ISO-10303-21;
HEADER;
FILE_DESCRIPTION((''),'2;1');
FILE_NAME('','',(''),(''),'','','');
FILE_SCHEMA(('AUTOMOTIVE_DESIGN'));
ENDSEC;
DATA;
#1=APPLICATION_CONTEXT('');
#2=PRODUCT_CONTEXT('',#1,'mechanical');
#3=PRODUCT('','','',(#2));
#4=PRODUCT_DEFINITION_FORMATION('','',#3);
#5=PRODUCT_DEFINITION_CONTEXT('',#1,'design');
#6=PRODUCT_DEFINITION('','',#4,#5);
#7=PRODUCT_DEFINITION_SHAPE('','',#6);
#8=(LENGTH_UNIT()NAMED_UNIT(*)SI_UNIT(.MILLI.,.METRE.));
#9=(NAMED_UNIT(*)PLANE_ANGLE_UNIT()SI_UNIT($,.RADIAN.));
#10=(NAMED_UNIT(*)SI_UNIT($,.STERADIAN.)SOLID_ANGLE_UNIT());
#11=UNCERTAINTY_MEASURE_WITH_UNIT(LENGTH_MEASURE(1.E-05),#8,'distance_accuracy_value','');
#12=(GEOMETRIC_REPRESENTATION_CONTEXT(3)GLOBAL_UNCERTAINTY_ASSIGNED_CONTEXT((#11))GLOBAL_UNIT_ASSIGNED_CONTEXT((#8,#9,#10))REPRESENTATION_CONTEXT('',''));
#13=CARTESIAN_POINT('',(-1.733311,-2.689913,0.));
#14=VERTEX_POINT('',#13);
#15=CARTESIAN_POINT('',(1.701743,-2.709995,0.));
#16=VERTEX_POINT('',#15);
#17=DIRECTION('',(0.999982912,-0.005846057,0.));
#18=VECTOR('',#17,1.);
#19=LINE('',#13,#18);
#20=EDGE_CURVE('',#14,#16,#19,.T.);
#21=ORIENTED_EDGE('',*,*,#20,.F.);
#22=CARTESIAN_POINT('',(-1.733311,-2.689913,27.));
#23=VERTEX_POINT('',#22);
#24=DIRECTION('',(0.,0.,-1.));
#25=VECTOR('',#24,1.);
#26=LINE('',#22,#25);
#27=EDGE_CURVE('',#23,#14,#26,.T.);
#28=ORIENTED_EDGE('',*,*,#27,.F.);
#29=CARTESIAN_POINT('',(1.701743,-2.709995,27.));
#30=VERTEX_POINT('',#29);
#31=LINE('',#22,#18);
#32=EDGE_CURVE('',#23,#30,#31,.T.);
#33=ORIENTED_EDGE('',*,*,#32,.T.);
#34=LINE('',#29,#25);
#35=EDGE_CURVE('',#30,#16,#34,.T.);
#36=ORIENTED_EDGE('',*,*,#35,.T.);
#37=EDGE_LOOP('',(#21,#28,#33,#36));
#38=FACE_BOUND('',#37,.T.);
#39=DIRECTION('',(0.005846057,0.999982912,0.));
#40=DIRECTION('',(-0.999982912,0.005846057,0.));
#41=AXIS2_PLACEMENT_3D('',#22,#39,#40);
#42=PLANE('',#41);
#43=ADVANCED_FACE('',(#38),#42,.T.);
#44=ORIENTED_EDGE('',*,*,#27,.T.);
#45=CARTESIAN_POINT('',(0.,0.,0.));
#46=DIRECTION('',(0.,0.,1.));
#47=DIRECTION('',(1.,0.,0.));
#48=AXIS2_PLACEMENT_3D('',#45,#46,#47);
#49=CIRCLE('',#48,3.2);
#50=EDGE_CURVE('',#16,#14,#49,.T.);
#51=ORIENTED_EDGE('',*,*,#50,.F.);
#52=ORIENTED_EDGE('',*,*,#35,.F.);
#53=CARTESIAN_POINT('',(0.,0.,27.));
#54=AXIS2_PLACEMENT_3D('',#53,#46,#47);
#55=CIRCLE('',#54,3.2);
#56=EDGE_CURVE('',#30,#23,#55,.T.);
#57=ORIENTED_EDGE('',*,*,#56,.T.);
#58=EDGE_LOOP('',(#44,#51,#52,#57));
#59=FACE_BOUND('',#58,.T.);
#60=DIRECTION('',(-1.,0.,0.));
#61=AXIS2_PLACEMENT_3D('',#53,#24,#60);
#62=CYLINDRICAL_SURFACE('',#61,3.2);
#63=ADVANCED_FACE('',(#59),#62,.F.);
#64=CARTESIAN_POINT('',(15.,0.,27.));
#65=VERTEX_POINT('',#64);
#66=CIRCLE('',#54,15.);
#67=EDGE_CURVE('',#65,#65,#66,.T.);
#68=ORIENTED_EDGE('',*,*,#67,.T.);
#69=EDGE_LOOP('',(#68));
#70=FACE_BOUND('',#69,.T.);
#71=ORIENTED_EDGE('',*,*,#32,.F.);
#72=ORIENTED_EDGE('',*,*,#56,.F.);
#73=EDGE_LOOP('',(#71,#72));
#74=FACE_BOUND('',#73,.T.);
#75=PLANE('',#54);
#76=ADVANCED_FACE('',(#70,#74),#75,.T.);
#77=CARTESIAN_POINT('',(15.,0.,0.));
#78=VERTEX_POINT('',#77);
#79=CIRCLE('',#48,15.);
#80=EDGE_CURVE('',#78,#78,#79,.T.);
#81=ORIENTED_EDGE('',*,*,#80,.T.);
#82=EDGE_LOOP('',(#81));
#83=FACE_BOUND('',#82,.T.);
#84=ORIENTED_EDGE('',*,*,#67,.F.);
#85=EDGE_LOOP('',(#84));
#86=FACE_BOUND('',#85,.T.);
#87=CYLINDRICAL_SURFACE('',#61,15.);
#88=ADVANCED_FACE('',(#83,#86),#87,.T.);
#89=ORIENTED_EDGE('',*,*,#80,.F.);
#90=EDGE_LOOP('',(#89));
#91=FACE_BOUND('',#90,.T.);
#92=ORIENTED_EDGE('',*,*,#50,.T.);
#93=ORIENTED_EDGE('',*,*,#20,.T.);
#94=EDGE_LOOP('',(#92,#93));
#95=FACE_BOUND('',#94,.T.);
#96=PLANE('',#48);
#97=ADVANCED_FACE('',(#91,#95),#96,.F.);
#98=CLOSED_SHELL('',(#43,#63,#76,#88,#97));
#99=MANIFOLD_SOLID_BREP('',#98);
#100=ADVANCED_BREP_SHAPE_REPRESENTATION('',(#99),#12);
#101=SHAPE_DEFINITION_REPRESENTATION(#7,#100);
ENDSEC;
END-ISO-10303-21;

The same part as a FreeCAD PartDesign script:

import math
import FreeCAD as App
import Part
import Sketcher

V = App.Vector

doc = App.newDocument("Part")
body = doc.addObject("PartDesign::Body", "Body")

# Sketch on XY plane
sketch1 = doc.addObject("Sketcher::SketchObject", "Sketch")
body.addObject(sketch1)
sketch1.AttachmentSupport = (doc.XY_Plane, [""])
sketch1.MapMode = "FlatFace"
sketch1.addGeometry([
    Part.Circle(V(0, 0, 0), V(0, 0, 1), 15),
    Part.LineSegment(V(1.7, -2.7, 0), V(-1.7, -2.7, 0)),
    Part.ArcOfCircle(Part.Circle(V(0, 0, 0), V(0, 0, 1), 3.2), math.radians(-58), math.radians(237)),
], False)
sketch1.addConstraint([
    Sketcher.Constraint("Coincident", 1, 1, 2, 1),
    Sketcher.Constraint("Coincident", 2, 2, 1, 2),
    Sketcher.Constraint("Coincident", 0, 3, -1, 1),
    Sketcher.Constraint("Coincident", 2, 3, -1, 1),
    Sketcher.Constraint("Diameter", 0, 30.0),
    Sketcher.Constraint("Radius", 2, 3.2),
    Sketcher.Constraint("DistanceX", 2, 2, -1, 1, 1.733311),
    Sketcher.Constraint("DistanceY", 1, 1, 2, 2, 0.020082),
])
pad1 = doc.addObject("PartDesign::Pad", "Pad")
body.addObject(pad1)
pad1.Profile = sketch1
pad1.Length = 27

doc.recompute()
